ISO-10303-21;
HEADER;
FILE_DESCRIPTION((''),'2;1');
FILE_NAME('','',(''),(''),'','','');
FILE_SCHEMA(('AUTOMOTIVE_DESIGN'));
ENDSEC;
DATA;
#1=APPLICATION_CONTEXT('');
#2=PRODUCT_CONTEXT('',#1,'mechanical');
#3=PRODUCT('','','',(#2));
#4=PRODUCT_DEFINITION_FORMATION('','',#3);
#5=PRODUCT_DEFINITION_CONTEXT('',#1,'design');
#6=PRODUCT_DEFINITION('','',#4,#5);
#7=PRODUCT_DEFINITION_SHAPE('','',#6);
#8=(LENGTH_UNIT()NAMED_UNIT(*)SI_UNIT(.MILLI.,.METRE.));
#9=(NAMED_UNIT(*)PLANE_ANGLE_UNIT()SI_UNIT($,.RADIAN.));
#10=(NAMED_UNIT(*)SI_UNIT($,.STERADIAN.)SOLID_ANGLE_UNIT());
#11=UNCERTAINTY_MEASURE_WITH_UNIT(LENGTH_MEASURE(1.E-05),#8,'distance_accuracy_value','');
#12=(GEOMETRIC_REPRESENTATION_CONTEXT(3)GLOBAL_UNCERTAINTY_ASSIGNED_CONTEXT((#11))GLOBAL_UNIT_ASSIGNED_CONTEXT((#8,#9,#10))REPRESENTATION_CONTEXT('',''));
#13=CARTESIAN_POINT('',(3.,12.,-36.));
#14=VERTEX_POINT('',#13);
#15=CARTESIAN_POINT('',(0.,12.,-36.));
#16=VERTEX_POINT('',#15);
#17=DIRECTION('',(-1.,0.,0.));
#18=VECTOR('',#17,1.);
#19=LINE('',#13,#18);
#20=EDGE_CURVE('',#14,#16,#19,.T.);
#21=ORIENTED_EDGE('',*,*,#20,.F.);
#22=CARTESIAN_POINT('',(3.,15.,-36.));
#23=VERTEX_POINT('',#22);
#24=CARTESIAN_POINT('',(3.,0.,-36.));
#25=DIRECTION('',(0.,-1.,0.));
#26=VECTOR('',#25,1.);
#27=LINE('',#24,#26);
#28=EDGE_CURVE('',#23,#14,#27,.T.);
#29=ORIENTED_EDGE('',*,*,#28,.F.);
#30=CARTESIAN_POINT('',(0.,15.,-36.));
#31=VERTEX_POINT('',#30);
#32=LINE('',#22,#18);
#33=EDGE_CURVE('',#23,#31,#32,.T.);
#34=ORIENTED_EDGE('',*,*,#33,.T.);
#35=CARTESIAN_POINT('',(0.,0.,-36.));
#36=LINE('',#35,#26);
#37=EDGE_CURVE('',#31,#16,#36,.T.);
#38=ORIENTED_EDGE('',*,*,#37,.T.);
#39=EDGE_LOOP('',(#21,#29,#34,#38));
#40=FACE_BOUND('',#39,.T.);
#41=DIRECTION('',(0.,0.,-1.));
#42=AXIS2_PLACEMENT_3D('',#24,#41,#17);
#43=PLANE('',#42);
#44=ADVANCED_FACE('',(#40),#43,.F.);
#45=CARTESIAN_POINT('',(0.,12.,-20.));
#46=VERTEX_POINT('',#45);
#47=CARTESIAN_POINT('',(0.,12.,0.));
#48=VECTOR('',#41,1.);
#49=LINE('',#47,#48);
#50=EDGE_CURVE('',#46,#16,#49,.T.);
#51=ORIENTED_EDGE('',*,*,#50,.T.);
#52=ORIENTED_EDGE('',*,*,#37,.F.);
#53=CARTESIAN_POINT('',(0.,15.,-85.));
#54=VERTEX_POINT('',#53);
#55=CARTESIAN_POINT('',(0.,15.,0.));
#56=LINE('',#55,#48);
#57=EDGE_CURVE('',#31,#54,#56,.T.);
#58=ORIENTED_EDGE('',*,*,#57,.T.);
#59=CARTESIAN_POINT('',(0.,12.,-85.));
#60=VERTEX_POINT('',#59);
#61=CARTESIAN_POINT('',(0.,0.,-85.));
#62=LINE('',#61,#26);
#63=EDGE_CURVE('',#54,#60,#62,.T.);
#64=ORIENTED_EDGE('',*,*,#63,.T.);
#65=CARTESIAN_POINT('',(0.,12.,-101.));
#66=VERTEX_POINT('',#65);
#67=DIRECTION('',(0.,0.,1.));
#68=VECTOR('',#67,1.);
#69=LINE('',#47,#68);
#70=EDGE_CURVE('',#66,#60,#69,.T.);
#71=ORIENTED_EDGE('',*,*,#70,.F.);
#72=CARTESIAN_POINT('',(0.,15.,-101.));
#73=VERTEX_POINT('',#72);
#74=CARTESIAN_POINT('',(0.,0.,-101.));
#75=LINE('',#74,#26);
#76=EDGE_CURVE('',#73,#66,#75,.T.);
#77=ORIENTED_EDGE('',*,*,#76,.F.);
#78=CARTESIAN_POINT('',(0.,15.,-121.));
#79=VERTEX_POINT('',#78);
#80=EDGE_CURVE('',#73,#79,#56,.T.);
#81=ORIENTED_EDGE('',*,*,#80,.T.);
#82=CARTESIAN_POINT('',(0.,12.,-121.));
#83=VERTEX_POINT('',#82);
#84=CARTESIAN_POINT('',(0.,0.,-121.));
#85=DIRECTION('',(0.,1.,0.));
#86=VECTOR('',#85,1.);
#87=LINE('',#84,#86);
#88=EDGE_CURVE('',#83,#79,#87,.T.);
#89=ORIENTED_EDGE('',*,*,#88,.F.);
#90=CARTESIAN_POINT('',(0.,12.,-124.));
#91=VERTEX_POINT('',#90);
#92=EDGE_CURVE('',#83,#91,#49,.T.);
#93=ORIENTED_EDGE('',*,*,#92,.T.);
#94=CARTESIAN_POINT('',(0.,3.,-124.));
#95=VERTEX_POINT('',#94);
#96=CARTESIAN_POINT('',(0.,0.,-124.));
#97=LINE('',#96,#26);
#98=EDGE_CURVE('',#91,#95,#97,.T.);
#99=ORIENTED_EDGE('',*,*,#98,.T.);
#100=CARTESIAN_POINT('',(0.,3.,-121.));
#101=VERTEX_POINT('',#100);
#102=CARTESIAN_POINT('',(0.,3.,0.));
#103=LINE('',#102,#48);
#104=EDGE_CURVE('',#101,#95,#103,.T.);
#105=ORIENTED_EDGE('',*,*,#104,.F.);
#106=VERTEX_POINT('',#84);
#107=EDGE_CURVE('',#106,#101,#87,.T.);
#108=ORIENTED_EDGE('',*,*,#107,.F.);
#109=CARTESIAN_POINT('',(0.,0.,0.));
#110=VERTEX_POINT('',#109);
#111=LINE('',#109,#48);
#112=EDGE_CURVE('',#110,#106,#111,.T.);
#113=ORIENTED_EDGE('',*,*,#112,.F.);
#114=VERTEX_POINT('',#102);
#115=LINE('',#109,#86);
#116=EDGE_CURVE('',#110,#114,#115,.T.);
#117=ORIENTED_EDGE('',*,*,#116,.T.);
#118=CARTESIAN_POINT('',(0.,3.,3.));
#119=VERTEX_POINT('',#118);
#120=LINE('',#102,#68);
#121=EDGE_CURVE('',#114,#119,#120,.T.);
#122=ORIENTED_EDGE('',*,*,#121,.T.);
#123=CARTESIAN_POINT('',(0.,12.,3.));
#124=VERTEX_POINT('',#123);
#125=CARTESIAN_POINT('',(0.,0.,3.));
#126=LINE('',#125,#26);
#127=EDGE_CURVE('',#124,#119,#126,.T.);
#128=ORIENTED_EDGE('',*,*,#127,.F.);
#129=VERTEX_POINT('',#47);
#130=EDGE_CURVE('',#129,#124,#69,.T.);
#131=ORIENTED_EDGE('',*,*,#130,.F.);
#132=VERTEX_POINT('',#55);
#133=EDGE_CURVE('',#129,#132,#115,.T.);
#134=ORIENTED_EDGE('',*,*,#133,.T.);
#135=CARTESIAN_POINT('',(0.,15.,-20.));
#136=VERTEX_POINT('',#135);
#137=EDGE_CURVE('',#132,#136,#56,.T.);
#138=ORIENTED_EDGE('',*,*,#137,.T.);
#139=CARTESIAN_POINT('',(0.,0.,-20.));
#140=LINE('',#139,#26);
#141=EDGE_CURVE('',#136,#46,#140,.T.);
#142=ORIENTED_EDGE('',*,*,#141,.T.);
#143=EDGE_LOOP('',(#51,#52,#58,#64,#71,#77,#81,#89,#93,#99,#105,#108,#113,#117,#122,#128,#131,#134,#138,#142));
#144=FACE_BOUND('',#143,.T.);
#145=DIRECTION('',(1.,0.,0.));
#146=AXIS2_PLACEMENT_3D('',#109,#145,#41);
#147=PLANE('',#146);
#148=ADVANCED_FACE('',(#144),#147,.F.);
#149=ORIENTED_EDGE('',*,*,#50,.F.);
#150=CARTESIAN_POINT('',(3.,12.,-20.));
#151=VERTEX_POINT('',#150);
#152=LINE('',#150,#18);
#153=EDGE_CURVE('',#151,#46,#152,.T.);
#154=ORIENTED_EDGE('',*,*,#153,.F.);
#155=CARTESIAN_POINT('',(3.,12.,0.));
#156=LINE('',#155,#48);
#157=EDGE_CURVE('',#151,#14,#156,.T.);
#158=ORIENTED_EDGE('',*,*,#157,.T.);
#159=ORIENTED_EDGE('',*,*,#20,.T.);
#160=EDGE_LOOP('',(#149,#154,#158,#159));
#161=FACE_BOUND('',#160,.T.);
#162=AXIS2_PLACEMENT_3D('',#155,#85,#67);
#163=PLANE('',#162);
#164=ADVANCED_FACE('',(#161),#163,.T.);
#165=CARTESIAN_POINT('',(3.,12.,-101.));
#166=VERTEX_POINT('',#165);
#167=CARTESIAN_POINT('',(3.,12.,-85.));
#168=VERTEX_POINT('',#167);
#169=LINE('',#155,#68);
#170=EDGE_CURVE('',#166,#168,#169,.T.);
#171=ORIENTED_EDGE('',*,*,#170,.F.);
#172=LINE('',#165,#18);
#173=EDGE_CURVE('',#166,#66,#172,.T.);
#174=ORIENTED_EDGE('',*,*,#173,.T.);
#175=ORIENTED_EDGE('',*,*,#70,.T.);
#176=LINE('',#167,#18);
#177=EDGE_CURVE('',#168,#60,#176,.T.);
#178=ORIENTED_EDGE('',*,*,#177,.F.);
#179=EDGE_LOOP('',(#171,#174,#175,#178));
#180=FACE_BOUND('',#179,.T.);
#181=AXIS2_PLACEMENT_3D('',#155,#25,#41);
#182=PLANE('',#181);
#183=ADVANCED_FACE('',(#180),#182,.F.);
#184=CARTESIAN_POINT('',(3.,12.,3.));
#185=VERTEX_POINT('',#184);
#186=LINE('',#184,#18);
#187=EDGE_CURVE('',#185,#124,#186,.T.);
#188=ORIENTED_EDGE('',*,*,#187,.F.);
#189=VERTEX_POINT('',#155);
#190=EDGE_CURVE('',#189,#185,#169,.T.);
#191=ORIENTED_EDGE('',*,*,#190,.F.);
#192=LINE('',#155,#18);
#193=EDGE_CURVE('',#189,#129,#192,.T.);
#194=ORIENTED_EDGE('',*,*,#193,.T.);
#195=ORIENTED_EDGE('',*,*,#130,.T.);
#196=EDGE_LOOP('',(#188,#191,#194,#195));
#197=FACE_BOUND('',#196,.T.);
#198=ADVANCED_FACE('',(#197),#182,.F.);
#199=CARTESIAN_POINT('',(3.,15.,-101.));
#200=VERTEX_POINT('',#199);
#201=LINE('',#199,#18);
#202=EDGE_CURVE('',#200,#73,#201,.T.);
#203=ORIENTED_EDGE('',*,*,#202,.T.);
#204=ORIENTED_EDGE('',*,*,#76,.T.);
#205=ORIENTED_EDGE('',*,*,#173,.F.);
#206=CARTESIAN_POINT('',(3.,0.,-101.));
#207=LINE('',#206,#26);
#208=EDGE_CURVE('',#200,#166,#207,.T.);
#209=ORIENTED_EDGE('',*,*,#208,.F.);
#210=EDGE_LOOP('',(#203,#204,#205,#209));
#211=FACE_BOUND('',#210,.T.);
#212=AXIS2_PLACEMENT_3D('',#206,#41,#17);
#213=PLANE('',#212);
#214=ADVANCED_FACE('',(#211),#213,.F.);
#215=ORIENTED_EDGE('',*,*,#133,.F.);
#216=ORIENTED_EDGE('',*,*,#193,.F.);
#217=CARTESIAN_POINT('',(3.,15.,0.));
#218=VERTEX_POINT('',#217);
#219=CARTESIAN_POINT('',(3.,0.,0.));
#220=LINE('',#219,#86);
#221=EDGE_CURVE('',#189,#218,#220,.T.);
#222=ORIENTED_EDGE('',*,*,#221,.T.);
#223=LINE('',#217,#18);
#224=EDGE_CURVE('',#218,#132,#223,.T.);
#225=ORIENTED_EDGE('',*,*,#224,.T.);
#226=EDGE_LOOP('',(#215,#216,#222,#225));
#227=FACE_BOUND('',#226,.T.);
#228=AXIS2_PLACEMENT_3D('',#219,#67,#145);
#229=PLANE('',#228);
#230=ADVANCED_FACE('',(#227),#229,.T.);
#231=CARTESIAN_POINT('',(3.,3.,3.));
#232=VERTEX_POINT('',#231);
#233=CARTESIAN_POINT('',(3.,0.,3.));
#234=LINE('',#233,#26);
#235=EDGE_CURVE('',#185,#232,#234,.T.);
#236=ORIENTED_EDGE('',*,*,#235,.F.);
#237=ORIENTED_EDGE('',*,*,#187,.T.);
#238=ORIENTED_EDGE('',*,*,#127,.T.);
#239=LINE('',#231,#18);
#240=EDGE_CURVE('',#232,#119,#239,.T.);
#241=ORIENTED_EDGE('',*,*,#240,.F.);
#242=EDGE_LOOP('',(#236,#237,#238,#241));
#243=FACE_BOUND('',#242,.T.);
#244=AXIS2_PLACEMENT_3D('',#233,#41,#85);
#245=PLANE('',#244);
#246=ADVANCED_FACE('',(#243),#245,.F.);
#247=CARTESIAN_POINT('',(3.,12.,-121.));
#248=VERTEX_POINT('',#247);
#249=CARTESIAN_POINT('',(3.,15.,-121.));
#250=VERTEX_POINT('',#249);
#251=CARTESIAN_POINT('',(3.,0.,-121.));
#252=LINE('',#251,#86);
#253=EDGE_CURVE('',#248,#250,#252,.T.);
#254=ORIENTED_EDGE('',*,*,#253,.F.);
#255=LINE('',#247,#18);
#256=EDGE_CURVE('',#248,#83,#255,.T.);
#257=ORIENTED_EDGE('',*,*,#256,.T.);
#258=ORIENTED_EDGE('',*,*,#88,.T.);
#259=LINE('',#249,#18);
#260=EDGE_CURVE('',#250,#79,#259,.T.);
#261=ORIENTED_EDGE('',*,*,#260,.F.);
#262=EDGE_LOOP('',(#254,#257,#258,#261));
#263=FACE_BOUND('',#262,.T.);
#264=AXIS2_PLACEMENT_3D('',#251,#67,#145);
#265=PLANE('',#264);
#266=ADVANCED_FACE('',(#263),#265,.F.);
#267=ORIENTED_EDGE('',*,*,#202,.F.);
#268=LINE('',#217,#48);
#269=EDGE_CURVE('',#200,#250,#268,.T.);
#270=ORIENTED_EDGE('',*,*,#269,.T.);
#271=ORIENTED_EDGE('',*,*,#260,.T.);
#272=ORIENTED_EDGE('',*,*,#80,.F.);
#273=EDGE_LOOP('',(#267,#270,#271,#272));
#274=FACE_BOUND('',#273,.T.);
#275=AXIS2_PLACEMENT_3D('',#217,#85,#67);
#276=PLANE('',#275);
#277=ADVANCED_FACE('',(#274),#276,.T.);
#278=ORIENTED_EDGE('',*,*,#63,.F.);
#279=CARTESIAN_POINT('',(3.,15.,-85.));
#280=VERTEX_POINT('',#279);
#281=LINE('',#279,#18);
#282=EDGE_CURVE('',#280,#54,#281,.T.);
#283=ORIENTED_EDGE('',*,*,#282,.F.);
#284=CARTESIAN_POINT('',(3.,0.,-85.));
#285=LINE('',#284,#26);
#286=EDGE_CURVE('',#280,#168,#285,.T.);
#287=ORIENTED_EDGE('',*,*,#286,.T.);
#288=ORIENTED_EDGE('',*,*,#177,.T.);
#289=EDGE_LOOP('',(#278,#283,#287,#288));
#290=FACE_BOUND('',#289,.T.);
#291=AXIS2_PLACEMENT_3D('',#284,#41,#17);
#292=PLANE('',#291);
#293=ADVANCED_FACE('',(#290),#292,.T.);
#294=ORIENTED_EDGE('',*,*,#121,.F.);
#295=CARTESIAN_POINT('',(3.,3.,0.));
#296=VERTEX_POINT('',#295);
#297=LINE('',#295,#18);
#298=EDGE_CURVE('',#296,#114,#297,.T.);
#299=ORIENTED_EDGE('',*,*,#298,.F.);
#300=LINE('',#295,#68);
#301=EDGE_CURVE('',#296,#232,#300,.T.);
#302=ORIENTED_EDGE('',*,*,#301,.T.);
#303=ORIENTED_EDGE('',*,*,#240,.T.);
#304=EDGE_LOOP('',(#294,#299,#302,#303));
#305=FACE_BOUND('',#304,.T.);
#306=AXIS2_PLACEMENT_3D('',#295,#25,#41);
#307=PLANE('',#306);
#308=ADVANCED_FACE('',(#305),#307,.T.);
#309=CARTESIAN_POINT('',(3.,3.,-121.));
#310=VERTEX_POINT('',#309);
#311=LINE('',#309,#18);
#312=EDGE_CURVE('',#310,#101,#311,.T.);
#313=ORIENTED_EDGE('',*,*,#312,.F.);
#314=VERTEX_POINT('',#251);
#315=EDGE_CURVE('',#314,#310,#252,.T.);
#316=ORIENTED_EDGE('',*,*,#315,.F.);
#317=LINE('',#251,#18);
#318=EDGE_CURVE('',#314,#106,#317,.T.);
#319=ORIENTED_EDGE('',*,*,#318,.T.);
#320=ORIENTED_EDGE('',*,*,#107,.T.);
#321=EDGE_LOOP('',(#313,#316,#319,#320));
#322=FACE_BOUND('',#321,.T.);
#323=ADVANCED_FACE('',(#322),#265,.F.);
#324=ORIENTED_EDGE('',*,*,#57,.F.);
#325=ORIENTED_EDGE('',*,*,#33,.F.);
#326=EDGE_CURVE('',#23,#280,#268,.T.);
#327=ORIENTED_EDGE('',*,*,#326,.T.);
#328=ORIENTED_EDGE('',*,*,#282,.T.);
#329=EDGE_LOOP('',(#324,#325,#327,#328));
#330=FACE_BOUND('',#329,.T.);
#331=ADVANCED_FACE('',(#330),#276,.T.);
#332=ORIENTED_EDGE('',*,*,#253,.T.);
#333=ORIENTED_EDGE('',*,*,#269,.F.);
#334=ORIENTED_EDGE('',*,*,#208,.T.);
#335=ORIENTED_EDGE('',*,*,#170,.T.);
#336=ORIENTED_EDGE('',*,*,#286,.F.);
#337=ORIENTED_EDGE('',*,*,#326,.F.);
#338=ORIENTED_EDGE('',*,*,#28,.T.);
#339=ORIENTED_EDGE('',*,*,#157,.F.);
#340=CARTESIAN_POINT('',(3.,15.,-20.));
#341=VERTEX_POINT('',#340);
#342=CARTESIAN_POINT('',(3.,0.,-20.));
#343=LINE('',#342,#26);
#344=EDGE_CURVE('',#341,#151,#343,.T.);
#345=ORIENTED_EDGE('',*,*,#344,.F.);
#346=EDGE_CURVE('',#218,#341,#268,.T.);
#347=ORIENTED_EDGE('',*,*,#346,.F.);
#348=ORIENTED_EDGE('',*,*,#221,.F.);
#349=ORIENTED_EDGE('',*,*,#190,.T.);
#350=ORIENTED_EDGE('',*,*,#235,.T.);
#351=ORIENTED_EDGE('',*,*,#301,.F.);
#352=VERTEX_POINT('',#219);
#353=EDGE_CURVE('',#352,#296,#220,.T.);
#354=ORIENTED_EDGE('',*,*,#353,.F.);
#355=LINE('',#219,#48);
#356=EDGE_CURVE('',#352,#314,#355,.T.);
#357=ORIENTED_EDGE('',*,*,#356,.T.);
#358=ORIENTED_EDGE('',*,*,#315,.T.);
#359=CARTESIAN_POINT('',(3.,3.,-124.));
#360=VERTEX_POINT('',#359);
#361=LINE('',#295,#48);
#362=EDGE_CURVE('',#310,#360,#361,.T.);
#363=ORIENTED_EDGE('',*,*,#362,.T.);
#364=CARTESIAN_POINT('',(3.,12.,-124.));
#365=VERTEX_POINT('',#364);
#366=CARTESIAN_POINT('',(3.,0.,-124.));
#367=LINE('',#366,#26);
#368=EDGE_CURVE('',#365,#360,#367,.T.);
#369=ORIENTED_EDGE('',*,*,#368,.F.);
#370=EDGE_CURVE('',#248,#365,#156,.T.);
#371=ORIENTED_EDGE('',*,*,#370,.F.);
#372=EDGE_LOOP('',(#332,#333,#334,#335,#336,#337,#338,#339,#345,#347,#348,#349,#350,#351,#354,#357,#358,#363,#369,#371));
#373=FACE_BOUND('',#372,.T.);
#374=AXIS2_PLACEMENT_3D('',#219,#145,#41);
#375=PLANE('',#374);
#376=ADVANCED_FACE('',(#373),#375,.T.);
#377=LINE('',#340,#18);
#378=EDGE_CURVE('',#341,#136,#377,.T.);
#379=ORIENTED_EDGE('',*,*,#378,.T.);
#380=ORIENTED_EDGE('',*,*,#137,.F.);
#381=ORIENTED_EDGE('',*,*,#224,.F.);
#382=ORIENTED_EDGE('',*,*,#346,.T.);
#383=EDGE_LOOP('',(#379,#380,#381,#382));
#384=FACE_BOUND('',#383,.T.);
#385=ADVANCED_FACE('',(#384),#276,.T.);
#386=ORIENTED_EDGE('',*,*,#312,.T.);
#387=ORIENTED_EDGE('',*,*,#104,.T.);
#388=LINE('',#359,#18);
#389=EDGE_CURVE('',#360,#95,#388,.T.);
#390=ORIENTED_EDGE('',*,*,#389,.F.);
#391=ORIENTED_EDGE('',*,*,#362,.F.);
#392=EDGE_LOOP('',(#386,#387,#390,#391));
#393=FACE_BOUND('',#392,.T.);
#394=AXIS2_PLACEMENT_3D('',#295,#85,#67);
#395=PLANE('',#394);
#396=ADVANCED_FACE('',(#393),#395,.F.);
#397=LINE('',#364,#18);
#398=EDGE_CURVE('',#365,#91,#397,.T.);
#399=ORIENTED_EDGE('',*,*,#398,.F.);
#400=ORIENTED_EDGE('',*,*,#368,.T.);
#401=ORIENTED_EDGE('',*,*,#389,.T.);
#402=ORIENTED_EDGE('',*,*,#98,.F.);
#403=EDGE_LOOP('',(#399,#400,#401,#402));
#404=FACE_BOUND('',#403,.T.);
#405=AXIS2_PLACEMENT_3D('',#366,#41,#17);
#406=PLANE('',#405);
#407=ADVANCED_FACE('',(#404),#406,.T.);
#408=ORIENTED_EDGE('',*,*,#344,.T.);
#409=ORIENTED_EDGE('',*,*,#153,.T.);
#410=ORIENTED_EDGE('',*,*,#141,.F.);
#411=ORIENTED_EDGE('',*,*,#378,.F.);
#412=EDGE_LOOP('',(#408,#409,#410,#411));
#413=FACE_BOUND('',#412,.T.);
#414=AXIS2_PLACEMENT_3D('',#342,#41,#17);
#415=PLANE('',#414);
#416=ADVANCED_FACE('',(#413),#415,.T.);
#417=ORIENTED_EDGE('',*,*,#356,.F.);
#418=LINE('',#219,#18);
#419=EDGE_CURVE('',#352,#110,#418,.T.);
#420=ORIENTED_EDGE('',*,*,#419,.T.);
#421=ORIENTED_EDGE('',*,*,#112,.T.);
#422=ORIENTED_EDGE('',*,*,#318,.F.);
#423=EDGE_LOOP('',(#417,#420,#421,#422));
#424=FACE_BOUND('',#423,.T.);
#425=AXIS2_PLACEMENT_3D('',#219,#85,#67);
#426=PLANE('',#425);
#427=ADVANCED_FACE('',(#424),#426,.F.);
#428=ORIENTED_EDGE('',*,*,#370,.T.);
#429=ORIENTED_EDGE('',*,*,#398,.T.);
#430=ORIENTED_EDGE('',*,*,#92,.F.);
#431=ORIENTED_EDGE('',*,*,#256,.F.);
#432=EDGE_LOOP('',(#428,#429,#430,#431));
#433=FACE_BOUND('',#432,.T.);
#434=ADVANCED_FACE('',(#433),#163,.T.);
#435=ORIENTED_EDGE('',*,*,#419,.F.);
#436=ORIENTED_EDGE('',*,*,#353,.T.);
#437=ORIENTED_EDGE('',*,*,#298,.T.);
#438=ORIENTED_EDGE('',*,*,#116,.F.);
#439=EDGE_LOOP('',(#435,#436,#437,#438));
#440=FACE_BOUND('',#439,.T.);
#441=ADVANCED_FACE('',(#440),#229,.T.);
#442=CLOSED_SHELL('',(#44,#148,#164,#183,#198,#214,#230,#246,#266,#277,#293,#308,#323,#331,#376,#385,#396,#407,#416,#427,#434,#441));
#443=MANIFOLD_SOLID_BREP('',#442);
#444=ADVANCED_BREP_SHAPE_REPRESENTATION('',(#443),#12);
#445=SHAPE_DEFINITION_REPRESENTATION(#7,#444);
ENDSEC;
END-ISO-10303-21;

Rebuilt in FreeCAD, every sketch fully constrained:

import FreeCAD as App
import Part
import Sketcher
Q = App.Units.Quantity


def add_polygon(sketch, points):
    """Adds a closed chain of lines whose ends are joined by coincident constraints."""
    first, n = sketch.GeometryCount, len(points)
    for a, b in zip(points, points[1:] + points[:1]):
        sketch.addGeometry(Part.LineSegment(App.Vector(*a, 0), App.Vector(*b, 0)), False)
    for i in range(n):
        sketch.addConstraint(Sketcher.Constraint("Coincident", first + i, 2, first + (i + 1) % n, 1))

doc = App.newDocument("Part")
body = doc.addObject("PartDesign::Body", "Body")

# Sketch on YZ plane
sketch1 = body.newObject("Sketcher::SketchObject", "Sketch")
sketch1.AttachmentSupport = (doc.getObject("YZ_Plane"), [""])
sketch1.MapMode = "FlatFace"
add_polygon(sketch1, [(0, 0), (0, -121), (3, -121), (3, -124), (12, -124), (12, -121), (15, -121), (15, -101), (12, -101), (12, -85), (15, -85), (15, -36), (12, -36), (12, -20), (15, -20), (15, 0), (12, 0), (12, 3), (3, 3), (3, 0)])  # lines 0-19
sketch1.addConstraint([
    Sketcher.Constraint("Vertical", 0),
    Sketcher.Constraint("Horizontal", 1),
    Sketcher.Constraint("Vertical", 2),
    Sketcher.Constraint("Horizontal", 3),
    Sketcher.Constraint("Vertical", 4),
    Sketcher.Constraint("Horizontal", 5),
    Sketcher.Constraint("Vertical", 6),
    Sketcher.Constraint("Horizontal", 7),
    Sketcher.Constraint("Vertical", 8),
    Sketcher.Constraint("Horizontal", 9),
    Sketcher.Constraint("Vertical", 10),
    Sketcher.Constraint("Horizontal", 11),
    Sketcher.Constraint("Vertical", 12),
    Sketcher.Constraint("Horizontal", 13),
    Sketcher.Constraint("Vertical", 14),
    Sketcher.Constraint("Horizontal", 15),
    Sketcher.Constraint("Vertical", 16),
    Sketcher.Constraint("Horizontal", 17),
    Sketcher.Constraint("Vertical", 18),
    Sketcher.Constraint("Horizontal", 19),
    Sketcher.Constraint("Coincident", 19, 2, -1, 1),
    Sketcher.Constraint("PointOnObject", 14, 2, -1),
    Sketcher.Constraint("Horizontal", 1, 2, 4, 2),
    Sketcher.Constraint("Vertical", 4, 2, 7, 2),
    Sketcher.Constraint("Vertical", 6, 2, 9, 2),
    Sketcher.Constraint("Vertical", 8, 2, 11, 2),
    Sketcher.Constraint("Vertical", 10, 2, 13, 2),
    Sketcher.Constraint("Vertical", 12, 2, 15, 2),
    Sketcher.Constraint("Vertical", 2, 2, 17, 2),
    Sketcher.Constraint("Equal", 1, 5),
    Sketcher.Constraint("Equal", 19, 2),
    Sketcher.Constraint("Equal", 8, 12),
    Sketcher.Constraint("Equal", 6, 14),
    Sketcher.Constraint("Equal", 4, 16),
    Sketcher.Constraint("DistanceX", 1, 1, 1, 2, Q("3 mm")),
    Sketcher.Constraint("DistanceX", 3, 1, 3, 2, Q("9 mm")),
    Sketcher.Constraint("DistanceY", 0, 2, 0, 1, Q("121 mm")),
    Sketcher.Constraint("DistanceY", 6, 1, 6, 2, Q("20 mm")),
    Sketcher.Constraint("DistanceY", 8, 1, 8, 2, Q("16 mm")),
])
pad1 = body.newObject("PartDesign::Pad", "Pad")
pad1.Profile = sketch1
pad1.Length = 3

doc.recompute()
